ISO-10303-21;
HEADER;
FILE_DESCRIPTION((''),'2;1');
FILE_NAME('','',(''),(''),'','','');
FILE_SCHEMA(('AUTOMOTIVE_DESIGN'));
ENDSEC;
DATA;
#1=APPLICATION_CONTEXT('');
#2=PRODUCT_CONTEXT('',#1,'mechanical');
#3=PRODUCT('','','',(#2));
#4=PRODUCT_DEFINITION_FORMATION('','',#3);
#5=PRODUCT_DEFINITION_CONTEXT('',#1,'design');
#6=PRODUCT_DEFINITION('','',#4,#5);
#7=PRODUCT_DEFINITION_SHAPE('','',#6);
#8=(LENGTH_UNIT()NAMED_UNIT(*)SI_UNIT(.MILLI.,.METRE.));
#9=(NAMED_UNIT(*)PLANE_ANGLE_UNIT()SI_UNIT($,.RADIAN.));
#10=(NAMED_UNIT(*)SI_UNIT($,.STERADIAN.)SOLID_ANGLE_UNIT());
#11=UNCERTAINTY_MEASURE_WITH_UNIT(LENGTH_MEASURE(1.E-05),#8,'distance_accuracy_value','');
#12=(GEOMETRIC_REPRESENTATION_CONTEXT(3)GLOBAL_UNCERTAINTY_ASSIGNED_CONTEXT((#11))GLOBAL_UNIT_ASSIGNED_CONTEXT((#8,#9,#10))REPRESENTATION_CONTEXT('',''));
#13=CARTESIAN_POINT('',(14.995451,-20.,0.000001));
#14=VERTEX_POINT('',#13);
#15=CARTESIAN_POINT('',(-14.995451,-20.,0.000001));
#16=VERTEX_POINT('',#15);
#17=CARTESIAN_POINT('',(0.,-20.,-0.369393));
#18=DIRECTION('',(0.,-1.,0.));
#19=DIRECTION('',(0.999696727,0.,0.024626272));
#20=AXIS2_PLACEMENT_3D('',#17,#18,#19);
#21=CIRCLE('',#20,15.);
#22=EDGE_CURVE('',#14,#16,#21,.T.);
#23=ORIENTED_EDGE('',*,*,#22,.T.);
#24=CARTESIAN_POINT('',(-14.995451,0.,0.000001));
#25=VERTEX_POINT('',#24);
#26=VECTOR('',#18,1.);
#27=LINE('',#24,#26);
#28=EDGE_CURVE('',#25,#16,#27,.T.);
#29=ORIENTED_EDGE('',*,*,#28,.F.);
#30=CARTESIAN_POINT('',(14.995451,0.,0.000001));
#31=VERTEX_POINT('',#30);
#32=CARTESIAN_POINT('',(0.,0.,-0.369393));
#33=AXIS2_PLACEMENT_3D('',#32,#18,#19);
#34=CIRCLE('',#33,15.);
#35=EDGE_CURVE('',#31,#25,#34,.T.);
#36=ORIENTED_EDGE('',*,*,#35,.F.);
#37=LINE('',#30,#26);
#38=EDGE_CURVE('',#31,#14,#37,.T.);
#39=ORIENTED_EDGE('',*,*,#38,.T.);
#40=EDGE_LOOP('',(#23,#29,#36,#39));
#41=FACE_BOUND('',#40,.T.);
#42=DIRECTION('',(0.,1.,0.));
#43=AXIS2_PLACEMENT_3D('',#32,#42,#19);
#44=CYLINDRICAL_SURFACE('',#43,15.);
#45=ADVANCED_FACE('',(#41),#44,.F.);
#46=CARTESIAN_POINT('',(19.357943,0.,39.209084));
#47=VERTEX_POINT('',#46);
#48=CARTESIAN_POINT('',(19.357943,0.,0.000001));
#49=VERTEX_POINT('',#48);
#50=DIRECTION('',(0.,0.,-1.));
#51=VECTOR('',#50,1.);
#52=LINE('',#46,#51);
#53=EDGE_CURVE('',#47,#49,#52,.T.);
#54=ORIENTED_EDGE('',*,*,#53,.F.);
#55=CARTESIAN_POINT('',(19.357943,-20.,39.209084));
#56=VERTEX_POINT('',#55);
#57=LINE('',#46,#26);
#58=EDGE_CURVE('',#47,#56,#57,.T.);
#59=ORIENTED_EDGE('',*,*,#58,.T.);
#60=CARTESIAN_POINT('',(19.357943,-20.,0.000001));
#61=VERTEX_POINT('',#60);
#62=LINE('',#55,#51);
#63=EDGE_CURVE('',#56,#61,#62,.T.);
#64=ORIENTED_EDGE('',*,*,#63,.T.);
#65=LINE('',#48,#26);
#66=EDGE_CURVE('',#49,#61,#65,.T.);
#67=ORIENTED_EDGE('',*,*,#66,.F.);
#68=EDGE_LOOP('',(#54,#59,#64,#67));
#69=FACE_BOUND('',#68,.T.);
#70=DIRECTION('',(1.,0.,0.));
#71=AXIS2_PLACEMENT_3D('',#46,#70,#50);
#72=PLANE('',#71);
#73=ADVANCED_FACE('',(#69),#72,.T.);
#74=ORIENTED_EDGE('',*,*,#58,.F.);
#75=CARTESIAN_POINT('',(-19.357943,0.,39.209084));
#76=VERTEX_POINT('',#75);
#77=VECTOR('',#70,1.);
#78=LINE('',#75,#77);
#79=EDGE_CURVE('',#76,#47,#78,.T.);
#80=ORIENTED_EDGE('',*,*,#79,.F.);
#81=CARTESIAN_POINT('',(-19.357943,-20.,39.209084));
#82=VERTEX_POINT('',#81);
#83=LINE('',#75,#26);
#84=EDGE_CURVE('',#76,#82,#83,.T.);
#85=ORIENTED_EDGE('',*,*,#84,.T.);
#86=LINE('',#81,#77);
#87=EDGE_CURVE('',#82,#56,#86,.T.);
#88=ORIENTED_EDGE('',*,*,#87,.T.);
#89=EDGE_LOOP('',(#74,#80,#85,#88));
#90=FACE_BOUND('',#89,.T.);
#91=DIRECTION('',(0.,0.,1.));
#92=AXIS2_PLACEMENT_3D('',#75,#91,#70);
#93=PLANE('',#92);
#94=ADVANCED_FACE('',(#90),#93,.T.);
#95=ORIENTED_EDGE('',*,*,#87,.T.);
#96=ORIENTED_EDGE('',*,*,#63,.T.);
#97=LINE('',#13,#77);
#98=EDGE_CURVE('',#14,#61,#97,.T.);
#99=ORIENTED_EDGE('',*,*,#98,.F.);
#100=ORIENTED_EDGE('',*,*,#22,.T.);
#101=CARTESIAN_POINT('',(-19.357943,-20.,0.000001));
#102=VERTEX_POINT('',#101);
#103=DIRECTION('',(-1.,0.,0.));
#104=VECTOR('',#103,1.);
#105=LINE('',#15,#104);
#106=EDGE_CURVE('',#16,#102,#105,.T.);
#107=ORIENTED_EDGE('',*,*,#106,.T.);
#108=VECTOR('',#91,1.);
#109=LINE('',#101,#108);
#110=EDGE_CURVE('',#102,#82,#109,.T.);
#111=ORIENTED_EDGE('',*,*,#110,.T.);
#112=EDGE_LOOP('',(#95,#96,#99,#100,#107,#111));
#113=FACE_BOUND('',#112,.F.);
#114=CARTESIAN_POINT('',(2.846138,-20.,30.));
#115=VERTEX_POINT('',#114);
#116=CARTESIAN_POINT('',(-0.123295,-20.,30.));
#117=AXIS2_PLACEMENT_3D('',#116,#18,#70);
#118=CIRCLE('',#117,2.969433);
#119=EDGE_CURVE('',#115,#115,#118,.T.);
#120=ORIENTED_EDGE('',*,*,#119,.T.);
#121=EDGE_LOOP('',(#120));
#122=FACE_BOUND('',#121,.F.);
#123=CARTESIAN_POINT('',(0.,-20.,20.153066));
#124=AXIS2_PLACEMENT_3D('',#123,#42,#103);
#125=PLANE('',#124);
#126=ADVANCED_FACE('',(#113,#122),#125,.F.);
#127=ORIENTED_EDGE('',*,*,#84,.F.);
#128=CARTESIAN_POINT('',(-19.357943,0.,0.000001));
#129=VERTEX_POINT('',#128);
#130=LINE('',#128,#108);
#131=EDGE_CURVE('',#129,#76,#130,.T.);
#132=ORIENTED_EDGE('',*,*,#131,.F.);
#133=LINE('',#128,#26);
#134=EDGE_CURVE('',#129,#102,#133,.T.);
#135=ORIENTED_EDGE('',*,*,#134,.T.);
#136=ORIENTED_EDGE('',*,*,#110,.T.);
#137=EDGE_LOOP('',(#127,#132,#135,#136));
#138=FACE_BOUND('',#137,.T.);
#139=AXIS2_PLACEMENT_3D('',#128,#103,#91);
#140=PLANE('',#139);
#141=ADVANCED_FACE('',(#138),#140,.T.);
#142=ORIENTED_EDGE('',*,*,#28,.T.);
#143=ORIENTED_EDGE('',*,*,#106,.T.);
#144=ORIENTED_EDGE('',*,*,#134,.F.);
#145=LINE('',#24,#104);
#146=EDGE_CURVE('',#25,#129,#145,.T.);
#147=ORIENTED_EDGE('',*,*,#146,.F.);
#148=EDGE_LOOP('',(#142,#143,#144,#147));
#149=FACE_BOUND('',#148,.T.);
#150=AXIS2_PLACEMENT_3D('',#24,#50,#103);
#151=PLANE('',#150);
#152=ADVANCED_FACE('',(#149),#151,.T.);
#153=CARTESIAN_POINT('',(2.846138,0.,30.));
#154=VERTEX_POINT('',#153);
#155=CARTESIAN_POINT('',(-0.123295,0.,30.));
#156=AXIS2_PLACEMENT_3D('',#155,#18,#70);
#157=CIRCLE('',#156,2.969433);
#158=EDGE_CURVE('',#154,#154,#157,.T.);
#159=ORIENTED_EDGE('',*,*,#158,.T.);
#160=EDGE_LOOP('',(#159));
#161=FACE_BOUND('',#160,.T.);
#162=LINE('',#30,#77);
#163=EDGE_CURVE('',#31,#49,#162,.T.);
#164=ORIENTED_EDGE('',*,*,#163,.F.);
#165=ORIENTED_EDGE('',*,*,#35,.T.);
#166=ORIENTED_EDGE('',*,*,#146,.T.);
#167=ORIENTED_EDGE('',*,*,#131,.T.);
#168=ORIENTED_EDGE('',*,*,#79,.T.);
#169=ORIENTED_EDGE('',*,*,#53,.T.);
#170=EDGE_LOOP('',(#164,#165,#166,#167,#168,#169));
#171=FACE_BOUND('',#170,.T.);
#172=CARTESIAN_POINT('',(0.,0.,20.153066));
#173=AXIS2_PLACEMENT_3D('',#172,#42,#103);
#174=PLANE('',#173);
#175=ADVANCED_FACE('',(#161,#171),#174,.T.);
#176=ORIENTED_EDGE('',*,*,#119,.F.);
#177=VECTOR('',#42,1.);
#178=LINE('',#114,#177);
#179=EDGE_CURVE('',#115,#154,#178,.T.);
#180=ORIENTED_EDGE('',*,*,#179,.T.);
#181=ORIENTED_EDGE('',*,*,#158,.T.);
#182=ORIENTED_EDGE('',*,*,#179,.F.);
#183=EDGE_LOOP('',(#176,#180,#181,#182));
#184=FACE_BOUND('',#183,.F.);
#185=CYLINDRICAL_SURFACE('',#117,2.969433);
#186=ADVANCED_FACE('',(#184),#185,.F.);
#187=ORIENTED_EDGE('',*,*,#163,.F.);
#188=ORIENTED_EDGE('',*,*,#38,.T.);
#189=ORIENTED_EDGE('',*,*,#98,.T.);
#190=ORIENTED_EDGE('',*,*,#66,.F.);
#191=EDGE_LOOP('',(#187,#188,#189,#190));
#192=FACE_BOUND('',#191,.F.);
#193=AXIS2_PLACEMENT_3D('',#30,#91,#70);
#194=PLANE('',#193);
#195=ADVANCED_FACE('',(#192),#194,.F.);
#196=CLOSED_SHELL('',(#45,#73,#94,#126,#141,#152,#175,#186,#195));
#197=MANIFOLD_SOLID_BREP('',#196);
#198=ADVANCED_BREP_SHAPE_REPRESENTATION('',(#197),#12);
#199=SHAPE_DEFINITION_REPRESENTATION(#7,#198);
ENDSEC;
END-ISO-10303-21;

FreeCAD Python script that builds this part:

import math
import FreeCAD as App
import Part
import Sketcher

doc = App.newDocument("Part")
body = doc.addObject("PartDesign::Body", "Body")

sketch1 = body.newObject("Sketcher::SketchObject", "Sketch")
sketch1.AttachmentSupport = (doc.getObject("XZ_Plane"), [""])
sketch1.MapMode = "FlatFace"
sketch1.addGeometry([
    Part.ArcOfCircle(Part.Circle(App.Vector(0, -0.4, 0), App.Vector(0, 0, 1), 15), math.radians(1), math.radians(179)),
    Part.LineSegment(App.Vector(15, 0, 0), App.Vector(19.4, 0, 0)),
    Part.LineSegment(App.Vector(19.4, 0, 0), App.Vector(19.4, 39.2, 0)),
    Part.LineSegment(App.Vector(19.4, 39.2, 0), App.Vector(-19.4, 39.2, 0)),
    Part.LineSegment(App.Vector(-19.4, 39.2, 0), App.Vector(-19.4, 0, 0)),
    Part.LineSegment(App.Vector(-19.4, 0, 0), App.Vector(-15, 0, 0)),
], False)
sketch1.addConstraint([
    Sketcher.Constraint("Coincident", 0, 1, 1, 1),
    Sketcher.Constraint("Coincident", 1, 2, 2, 1),
    Sketcher.Constraint("Coincident", 2, 2, 3, 1),
    Sketcher.Constraint("Coincident", 3, 2, 4, 1),
    Sketcher.Constraint("Coincident", 4, 2, 5, 1),
    Sketcher.Constraint("Coincident", 5, 2, 0, 2),
    Sketcher.Constraint("Horizontal", 1),
    Sketcher.Constraint("Vertical", 2),
    Sketcher.Constraint("Horizontal", 3),
    Sketcher.Constraint("Vertical", 4),
    Sketcher.Constraint("Horizontal", 5),
    Sketcher.Constraint("Symmetric", 1, 2, 4, 2, -1, 1),
    Sketcher.Constraint("Symmetric", 0, 1, 5, 2, -2),
    Sketcher.Constraint("Radius", 0, 15.0),
    Sketcher.Constraint("DistanceX", 1, 1, 1, 2, 4.362492),
    Sketcher.Constraint("DistanceX", 3, 2, 3, 1, 38.715886),
    Sketcher.Constraint("DistanceY", 2, 1, 2, 2, 39.209083),
])
pad1 = body.newObject("PartDesign::Pad", "Pad")
pad1.Profile = sketch1
pad1.Length = 20

sketch2 = body.newObject("Sketcher::SketchObject", "Sketch001")
sketch2.AttachmentSupport = (doc.getObject("XZ_Plane"), [""])
sketch2.MapMode = "FlatFace"
sketch2.AttachmentOffset = App.Placement(App.Vector(0, 0, 20), App.Rotation())
sketch2.addGeometry(Part.Circle(App.Vector(-0.1, 30, 0), App.Vector(0, 0, 1), 3), False)
sketch2.addConstraint([
    Sketcher.Constraint("DistanceY", -1, 1, 0, 3, 30.0),
    Sketcher.Constraint("Diameter", 0, 5.938866),
    Sketcher.Constraint("DistanceX", 0, 3, -1, 1, 0.123295),
])
pocket1 = body.newObject("PartDesign::Pocket", "Pocket")
pocket1.Profile = sketch2
pocket1.Type = "ThroughAll"

doc.recompute()
